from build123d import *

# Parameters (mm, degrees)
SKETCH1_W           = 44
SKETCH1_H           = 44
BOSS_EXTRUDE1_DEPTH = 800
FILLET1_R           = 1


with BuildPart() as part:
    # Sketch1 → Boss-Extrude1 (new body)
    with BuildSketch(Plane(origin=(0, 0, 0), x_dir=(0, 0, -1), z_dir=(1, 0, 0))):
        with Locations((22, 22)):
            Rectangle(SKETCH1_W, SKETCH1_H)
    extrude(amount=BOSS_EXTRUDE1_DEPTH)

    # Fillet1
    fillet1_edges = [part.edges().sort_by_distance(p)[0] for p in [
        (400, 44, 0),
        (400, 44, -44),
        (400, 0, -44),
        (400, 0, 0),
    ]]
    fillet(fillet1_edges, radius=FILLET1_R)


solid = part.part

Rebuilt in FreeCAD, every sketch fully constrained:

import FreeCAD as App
import Part
import Sketcher
from FreeCAD import Vector


def edges_at(feature, points):
    """Names of the edges that pass closest to the given points."""
    edges = feature.Shape.Edges
    near = lambda p: min(range(len(edges)), key=lambda i: edges[i].distToShape(Part.Vertex(*p))[0])
    return sorted({f"Edge{near(p) + 1}" for p in points})

doc = App.newDocument("Part")
body = doc.addObject("PartDesign::Body", "Body")

sketch1 = doc.addObject("Sketcher::SketchObject", "Sketch")
body.addObject(sketch1)
sketch1.AttachmentSupport = (doc.YZ_Plane, [""])
sketch1.MapMode = "FlatFace"
sketch1.addGeometry([
    Part.LineSegment(Vector(44, 0, 0), Vector(0, 0, 0)),
    Part.LineSegment(Vector(0, 0, 0), Vector(0, -44, 0)),
    Part.LineSegment(Vector(0, -44, 0), Vector(44, -44, 0)),
    Part.LineSegment(Vector(44, -44, 0), Vector(44, 0, 0)),
], False)
sketch1.addConstraint([
    Sketcher.Constraint("Coincident", 0, 2, 1, 1),
    Sketcher.Constraint("Coincident", 1, 2, 2, 1),
    Sketcher.Constraint("Coincident", 2, 2, 3, 1),
    Sketcher.Constraint("Coincident", 3, 2, 0, 1),
    Sketcher.Constraint("Horizontal", 0),
    Sketcher.Constraint("Vertical", 1),
    Sketcher.Constraint("Horizontal", 2),
    Sketcher.Constraint("Vertical", 3),
    Sketcher.Constraint("Coincident", 0, 2, -1, 1),
    Sketcher.Constraint("Equal", 2, 1),
    Sketcher.Constraint("DistanceX", 0, 2, 0, 1, 44.0),
])
pad1 = doc.addObject("PartDesign::Pad", "Pad")
body.addObject(pad1)
pad1.Profile = sketch1
pad1.Length = 800
doc.recompute()

fillet = doc.addObject("PartDesign::Fillet", "Fillet")
body.addObject(fillet)
fillet.Base = (pad1, edges_at(pad1, [
    (400, 44, 0),
    (400, 44, -44),
    (400, 0, -44),
    (400, 0, 0),
]))
fillet.Radius = 1

doc.recompute()
